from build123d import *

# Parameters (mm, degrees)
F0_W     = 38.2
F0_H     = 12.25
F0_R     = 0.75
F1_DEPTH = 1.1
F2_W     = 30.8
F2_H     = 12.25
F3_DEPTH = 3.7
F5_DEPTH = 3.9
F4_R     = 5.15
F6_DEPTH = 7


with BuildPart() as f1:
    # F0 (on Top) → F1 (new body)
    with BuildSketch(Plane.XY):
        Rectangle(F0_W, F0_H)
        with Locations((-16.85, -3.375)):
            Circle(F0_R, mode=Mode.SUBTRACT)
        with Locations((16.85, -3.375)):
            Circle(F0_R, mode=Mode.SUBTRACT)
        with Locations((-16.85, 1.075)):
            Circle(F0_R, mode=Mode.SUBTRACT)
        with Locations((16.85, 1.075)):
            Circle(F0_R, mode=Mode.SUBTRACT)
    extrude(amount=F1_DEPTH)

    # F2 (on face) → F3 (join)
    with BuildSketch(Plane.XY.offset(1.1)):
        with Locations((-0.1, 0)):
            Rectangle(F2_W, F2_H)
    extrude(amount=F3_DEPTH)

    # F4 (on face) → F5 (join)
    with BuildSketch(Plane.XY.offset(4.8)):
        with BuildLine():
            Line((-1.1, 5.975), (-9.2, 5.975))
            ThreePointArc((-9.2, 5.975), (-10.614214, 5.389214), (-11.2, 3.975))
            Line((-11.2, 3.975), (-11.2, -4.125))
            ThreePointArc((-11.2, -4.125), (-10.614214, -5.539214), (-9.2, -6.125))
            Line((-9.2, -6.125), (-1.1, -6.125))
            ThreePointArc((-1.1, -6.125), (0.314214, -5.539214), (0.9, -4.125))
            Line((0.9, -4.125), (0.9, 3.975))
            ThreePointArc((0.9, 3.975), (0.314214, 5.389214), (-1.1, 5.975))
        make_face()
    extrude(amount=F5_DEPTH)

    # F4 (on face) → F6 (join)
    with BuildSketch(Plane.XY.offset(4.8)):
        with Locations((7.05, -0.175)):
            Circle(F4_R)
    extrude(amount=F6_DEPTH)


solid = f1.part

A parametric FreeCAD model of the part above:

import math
import FreeCAD as App
import Part
import Sketcher

doc = App.newDocument("Part")
body = doc.addObject("PartDesign::Body", "Body")

sketch1 = doc.addObject("Sketcher::SketchObject", "Sketch")
body.addObject(sketch1)
sketch1.AttachmentSupport = (doc.XY_Plane, [""])
sketch1.MapMode = "FlatFace"
sketch1.addGeometry(Part.LineSegment(App.Vector(-19.1, 6.1, 0), App.Vector(-19.1, -6.1, 0)), False)
sketch1.addGeometry(Part.LineSegment(App.Vector(-19.1, -6.1, 0), App.Vector(19.1, -6.1, 0)), False)
sketch1.addGeometry(Part.LineSegment(App.Vector(19.1, -6.1, 0), App.Vector(19.1, 6.1, 0)), False)
sketch1.addGeometry(Part.LineSegment(App.Vector(19.1, 6.1, 0), App.Vector(-19.1, 6.1, 0)), False)
sketch1.addGeometry(Part.Circle(App.Vector(-16.9, -3.4, 0), App.Vector(0, 0, 1), 0.8), False)
sketch1.addGeometry(Part.Circle(App.Vector(16.9, -3.4, 0), App.Vector(0, 0, 1), 0.8), False)
sketch1.addGeometry(Part.Circle(App.Vector(-16.9, 1.1, 0), App.Vector(0, 0, 1), 0.8), False)
sketch1.addGeometry(Part.Circle(App.Vector(16.9, 1.1, 0), App.Vector(0, 0, 1), 0.8), False)
sketch1.addConstraint(Sketcher.Constraint("Coincident", 0, 2, 1, 1))
sketch1.addConstraint(Sketcher.Constraint("Coincident", 1, 2, 2, 1))
sketch1.addConstraint(Sketcher.Constraint("Coincident", 2, 2, 3, 1))
sketch1.addConstraint(Sketcher.Constraint("Coincident", 3, 2, 0, 1))
sketch1.addConstraint(Sketcher.Constraint("Vertical", 0))
sketch1.addConstraint(Sketcher.Constraint("Horizontal", 1))
sketch1.addConstraint(Sketcher.Constraint("Vertical", 2))
sketch1.addConstraint(Sketcher.Constraint("Horizontal", 3))
sketch1.addConstraint(Sketcher.Constraint("Equal", 4, 5))
sketch1.addConstraint(Sketcher.Constraint("Equal", 5, 6))
sketch1.addConstraint(Sketcher.Constraint("Equal", 6, 7))
sketch1.addConstraint(Sketcher.Constraint("Symmetric", 0, 2, 2, 2, -1, 1))
sketch1.addConstraint(Sketcher.Constraint("Symmetric", 4, 3, 5, 3, -2))
sketch1.addConstraint(Sketcher.Constraint("Symmetric", 6, 3, 7, 3, -2))
sketch1.addConstraint(Sketcher.Constraint("Vertical", 4, 3, 6, 3))
sketch1.addConstraint(Sketcher.Constraint("Diameter", 4, 1.5))
sketch1.addConstraint(Sketcher.Constraint("DistanceX", 1, 1, 1, 2, 38.2))
sketch1.addConstraint(Sketcher.Constraint("DistanceY", 0, 2, 0, 1, 12.25))
sketch1.addConstraint(Sketcher.Constraint("DistanceX", 4, 3, 5, 3, 33.7))
sketch1.addConstraint(Sketcher.Constraint("DistanceY", 0, 2, 6, 3, 7.2))
sketch1.addConstraint(Sketcher.Constraint("DistanceY", 5, 3, 2, 2, 9.5))
pad1 = doc.addObject("PartDesign::Pad", "Pad")
body.addObject(pad1)
pad1.Profile = sketch1
pad1.Length = 1.1

sketch2 = doc.addObject("Sketcher::SketchObject", "Sketch001")
body.addObject(sketch2)
sketch2.AttachmentSupport = (doc.XY_Plane, [""])
sketch2.MapMode = "FlatFace"
sketch2.AttachmentOffset = App.Placement(App.Vector(0, 0, 1.1), App.Rotation())
sketch2.addGeometry(Part.LineSegment(App.Vector(-16, 6, 0), App.Vector(-16, -6, 0)), False)
sketch2.addGeometry(Part.LineSegment(App.Vector(-16, -6, 0), App.Vector(15, -6, 0)), False)
sketch2.addGeometry(Part.LineSegment(App.Vector(15, -6, 0), App.Vector(15, 6, 0)), False)
sketch2.addGeometry(Part.LineSegment(App.Vector(15, 6, 0), App.Vector(-16, 6, 0)), False)
sketch2.addConstraint(Sketcher.Constraint("Coincident", 0, 2, 1, 1))
sketch2.addConstraint(Sketcher.Constraint("Coincident", 1, 2, 2, 1))
sketch2.addConstraint(Sketcher.Constraint("Coincident", 2, 2, 3, 1))
sketch2.addConstraint(Sketcher.Constraint("Coincident", 3, 2, 0, 1))
sketch2.addConstraint(Sketcher.Constraint("Vertical", 0))
sketch2.addConstraint(Sketcher.Constraint("Horizontal", 1))
sketch2.addConstraint(Sketcher.Constraint("Vertical", 2))
sketch2.addConstraint(Sketcher.Constraint("Horizontal", 3))
sketch2.addConstraint(Sketcher.Constraint("DistanceX", 1, 1, 1, 2, 30.8))
sketch2.addConstraint(Sketcher.Constraint("DistanceY", 0, 2, 0, 1, 12.25))
sketch2.addConstraint(Sketcher.Constraint("DistanceX", 0, 2, -1, 1, 15.5))
sketch2.addConstraint(Sketcher.Constraint("DistanceY", 0, 2, -1, 1, 6.125))
pad2 = doc.addObject("PartDesign::Pad", "Pad001")
body.addObject(pad2)
pad2.Profile = sketch2
pad2.Length = 3.7

sketch3 = doc.addObject("Sketcher::SketchObject", "Sketch002")
body.addObject(sketch3)
sketch3.AttachmentSupport = (doc.XY_Plane, [""])
sketch3.MapMode = "FlatFace"
sketch3.AttachmentOffset = App.Placement(App.Vector(0, 0, 4.8), App.Rotation())
sketch3.addGeometry(Part.LineSegment(App.Vector(-1.1, 6, 0), App.Vector(-9.2, 6, 0)), False)
sketch3.addGeometry(Part.ArcOfCircle(Part.Circle(App.Vector(-9.2, 4, 0), App.Vector(0, 0, 1), 2), math.radians(90), math.radians(180)), False)
sketch3.addGeometry(Part.LineSegment(App.Vector(-11.2, 4, 0), App.Vector(-11.2, -4.1, 0)), False)
sketch3.addGeometry(Part.ArcOfCircle(Part.Circle(App.Vector(-9.2, -4.1, 0), App.Vector(0, 0, 1), 2), math.radians(180), math.radians(270)), False)
sketch3.addGeometry(Part.LineSegment(App.Vector(-9.2, -6.1, 0), App.Vector(-1.1, -6.1, 0)), False)
sketch3.addGeometry(Part.ArcOfCircle(Part.Circle(App.Vector(-1.1, -4.1, 0), App.Vector(0, 0, 1), 2), math.radians(-90), math.radians(0)), False)
sketch3.addGeometry(Part.LineSegment(App.Vector(0.9, -4.1, 0), App.Vector(0.9, 4, 0)), False)
sketch3.addGeometry(Part.ArcOfCircle(Part.Circle(App.Vector(-1.1, 4, 0), App.Vector(0, 0, 1), 2), math.radians(0), math.radians(90)), False)
sketch3.addConstraint(Sketcher.Constraint("Tangent", 0, 2, 1, 1))
sketch3.addConstraint(Sketcher.Constraint("Tangent", 1, 2, 2, 1))
sketch3.addConstraint(Sketcher.Constraint("Tangent", 2, 2, 3, 1))
sketch3.addConstraint(Sketcher.Constraint("Tangent", 3, 2, 4, 1))
sketch3.addConstraint(Sketcher.Constraint("Tangent", 4, 2, 5, 1))
sketch3.addConstraint(Sketcher.Constraint("Tangent", 5, 2, 6, 1))
sketch3.addConstraint(Sketcher.Constraint("Tangent", 6, 2, 7, 1))
sketch3.addConstraint(Sketcher.Constraint("Tangent", 7, 2, 0, 1))
sketch3.addConstraint(Sketcher.Constraint("Horizontal", 0))
sketch3.addConstraint(Sketcher.Constraint("Vertical", 2))
sketch3.addConstraint(Sketcher.Constraint("Horizontal", 4))
sketch3.addConstraint(Sketcher.Constraint("Vertical", 6))
sketch3.addConstraint(Sketcher.Constraint("Equal", 1, 3))
sketch3.addConstraint(Sketcher.Constraint("Equal", 3, 5))
sketch3.addConstraint(Sketcher.Constraint("Equal", 5, 7))
sketch3.addConstraint(Sketcher.Constraint("Equal", 4, 2))
sketch3.addConstraint(Sketcher.Constraint("Radius", 1, 1.999999))
sketch3.addConstraint(Sketcher.Constraint("DistanceX", 0, 2, 0, 1, 8.1))
sketch3.addConstraint(Sketcher.Constraint("DistanceX", 1, 3, -1, 1, 9.200001))
sketch3.addConstraint(Sketcher.Constraint("DistanceY", -1, 1, 1, 3, 3.975001))
pad3 = doc.addObject("PartDesign::Pad", "Pad002")
body.addObject(pad3)
pad3.Profile = sketch3
pad3.Length = 3.9

sketch4 = doc.addObject("Sketcher::SketchObject", "Sketch003")
body.addObject(sketch4)
sketch4.AttachmentSupport = (doc.XY_Plane, [""])
sketch4.MapMode = "FlatFace"
sketch4.AttachmentOffset = App.Placement(App.Vector(0, 0, 4.8), App.Rotation())
sketch4.addGeometry(Part.Circle(App.Vector(7, 0, 0), App.Vector(0, 0, 1), 5), False)
sketch4.addConstraint(Sketcher.Constraint("Diameter", 0, 10.3))
sketch4.addConstraint(Sketcher.Constraint("DistanceX", -1, 1, 0, 3, 7.05))
sketch4.addConstraint(Sketcher.Constraint("DistanceY", 0, 3, -1, 1, 0.175))
pad4 = doc.addObject("PartDesign::Pad", "Pad003")
body.addObject(pad4)
pad4.Profile = sketch4
pad4.Length = 7

doc.recompute()
